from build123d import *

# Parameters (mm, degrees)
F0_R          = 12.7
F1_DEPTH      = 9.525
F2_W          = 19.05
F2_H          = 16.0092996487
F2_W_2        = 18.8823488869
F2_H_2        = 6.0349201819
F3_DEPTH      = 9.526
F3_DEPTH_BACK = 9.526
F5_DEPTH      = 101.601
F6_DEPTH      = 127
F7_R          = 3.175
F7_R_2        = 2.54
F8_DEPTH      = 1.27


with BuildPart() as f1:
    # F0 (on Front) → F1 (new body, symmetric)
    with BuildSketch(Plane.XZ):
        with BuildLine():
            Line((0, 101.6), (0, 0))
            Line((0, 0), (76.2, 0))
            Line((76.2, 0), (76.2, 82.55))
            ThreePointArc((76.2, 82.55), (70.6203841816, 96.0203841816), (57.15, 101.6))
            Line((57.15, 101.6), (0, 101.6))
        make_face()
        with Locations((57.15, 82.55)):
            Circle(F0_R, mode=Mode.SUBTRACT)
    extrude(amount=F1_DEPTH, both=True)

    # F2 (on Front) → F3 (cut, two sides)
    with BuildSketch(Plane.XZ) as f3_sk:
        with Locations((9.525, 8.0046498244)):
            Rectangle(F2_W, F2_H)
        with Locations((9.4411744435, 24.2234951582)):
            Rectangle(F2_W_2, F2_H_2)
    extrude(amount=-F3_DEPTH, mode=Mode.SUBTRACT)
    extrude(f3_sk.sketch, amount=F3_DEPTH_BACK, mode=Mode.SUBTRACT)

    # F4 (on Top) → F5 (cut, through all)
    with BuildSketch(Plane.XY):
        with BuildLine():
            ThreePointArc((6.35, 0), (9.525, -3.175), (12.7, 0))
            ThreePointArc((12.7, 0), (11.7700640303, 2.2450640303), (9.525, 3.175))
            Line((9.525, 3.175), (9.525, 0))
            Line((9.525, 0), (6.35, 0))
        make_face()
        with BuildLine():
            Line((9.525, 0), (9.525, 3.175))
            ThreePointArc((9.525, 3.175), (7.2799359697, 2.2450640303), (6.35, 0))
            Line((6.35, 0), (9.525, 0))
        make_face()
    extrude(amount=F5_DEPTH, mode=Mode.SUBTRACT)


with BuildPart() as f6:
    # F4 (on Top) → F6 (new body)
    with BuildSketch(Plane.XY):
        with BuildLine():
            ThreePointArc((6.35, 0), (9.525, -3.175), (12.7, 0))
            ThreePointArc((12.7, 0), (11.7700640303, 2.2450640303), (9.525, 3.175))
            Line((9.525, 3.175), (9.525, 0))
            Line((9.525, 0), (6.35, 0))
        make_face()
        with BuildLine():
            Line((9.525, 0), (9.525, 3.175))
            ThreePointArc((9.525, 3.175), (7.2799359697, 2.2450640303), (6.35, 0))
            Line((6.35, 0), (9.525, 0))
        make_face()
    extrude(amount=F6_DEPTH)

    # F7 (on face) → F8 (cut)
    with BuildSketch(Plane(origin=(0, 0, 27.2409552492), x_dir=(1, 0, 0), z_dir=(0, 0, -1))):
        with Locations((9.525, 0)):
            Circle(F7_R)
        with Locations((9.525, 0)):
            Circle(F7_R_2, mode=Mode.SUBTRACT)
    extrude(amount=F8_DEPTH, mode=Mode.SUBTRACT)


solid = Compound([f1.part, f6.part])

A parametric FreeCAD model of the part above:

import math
import FreeCAD as App
import Part
import Sketcher
from FreeCAD import Vector
Q = App.Units.Quantity


def add_polygon(sketch, points):
    """Adds a closed chain of lines whose ends are joined by coincident constraints."""
    first, n = sketch.GeometryCount, len(points)
    for a, b in zip(points, points[1:] + points[:1]):
        sketch.addGeometry(Part.LineSegment(App.Vector(*a, 0), App.Vector(*b, 0)), False)
    for i in range(n):
        sketch.addConstraint(Sketcher.Constraint("Coincident", first + i, 2, first + (i + 1) % n, 1))

doc = App.newDocument("Part")
body = doc.addObject("PartDesign::Body", "Body")

# Sketch on XZ plane
sketch1 = body.newObject("Sketcher::SketchObject", "Sketch")
sketch1.AttachmentSupport = (doc.getObject("XZ_Plane"), [""])
sketch1.MapMode = "FlatFace"
sketch1.addGeometry(Part.LineSegment(Vector(0, 101.6, 0), Vector(0, 0, 0)), False)
sketch1.addGeometry(Part.LineSegment(Vector(0, 0, 0), Vector(76.2, 0, 0)), False)
sketch1.addGeometry(Part.LineSegment(Vector(76.2, 0, 0), Vector(76.2, 82.55, 0)), False)
sketch1.addGeometry(Part.ArcOfCircle(Part.Circle(Vector(57.15, 82.55, 0), Vector(0, 0, 1), 19.05), math.radians(0), math.radians(90)), False)
sketch1.addGeometry(Part.LineSegment(Vector(57.15, 101.6, 0), Vector(0, 101.6, 0)), False)
sketch1.addGeometry(Part.Circle(Vector(57.15, 82.55, 0), Vector(0, 0, 1), 12.7), False)
sketch1.addConstraint(Sketcher.Constraint("Coincident", 0, 2, 1, 1))
sketch1.addConstraint(Sketcher.Constraint("Coincident", 1, 2, 2, 1))
sketch1.addConstraint(Sketcher.Constraint("Tangent", 2, 2, 3, 1))
sketch1.addConstraint(Sketcher.Constraint("Tangent", 3, 2, 4, 1))
sketch1.addConstraint(Sketcher.Constraint("Coincident", 4, 2, 0, 1))
sketch1.addConstraint(Sketcher.Constraint("Vertical", 0))
sketch1.addConstraint(Sketcher.Constraint("Horizontal", 1))
sketch1.addConstraint(Sketcher.Constraint("Vertical", 2))
sketch1.addConstraint(Sketcher.Constraint("Horizontal", 4))
sketch1.addConstraint(Sketcher.Constraint("Coincident", 0, 2, -1, 1))
sketch1.addConstraint(Sketcher.Constraint("Coincident", 5, 3, 3, 3))
sketch1.addConstraint(Sketcher.Constraint("Diameter", 5, Q("1 in")))
sketch1.addConstraint(Sketcher.Constraint("DistanceX", 1, 1, 1, 2, Q("3 in")))
sketch1.addConstraint(Sketcher.Constraint("DistanceY", 0, 2, 0, 1, Q("4 in")))
sketch1.addConstraint(Sketcher.Constraint("Radius", 3, Q("0.75 in")))
pad1 = body.newObject("PartDesign::Pad", "Pad")
pad1.Profile = sketch1
pad1.Length = Q("0.75 in")
pad1.Midplane = True

# Sketch on XZ plane
sketch2 = body.newObject("Sketcher::SketchObject", "Sketch001")
sketch2.AttachmentSupport = (doc.getObject("XZ_Plane"), [""])
sketch2.MapMode = "FlatFace"
add_polygon(sketch2, [(0, 16.0093), (0, 0), (19.05, 0), (19.05, 16.0093)])  # lines 0-3
add_polygon(sketch2, [(0, 27.240955), (0, 21.206035), (18.882349, 21.206035), (18.882349, 27.240955)])  # lines 4-7
sketch2.addConstraint(Sketcher.Constraint("Vertical", 0))
sketch2.addConstraint(Sketcher.Constraint("Horizontal", 1))
sketch2.addConstraint(Sketcher.Constraint("Vertical", 2))
sketch2.addConstraint(Sketcher.Constraint("Horizontal", 3))
sketch2.addConstraint(Sketcher.Constraint("Vertical", 4))
sketch2.addConstraint(Sketcher.Constraint("Horizontal", 5))
sketch2.addConstraint(Sketcher.Constraint("Vertical", 6))
sketch2.addConstraint(Sketcher.Constraint("Horizontal", 7))
sketch2.addConstraint(Sketcher.Constraint("Coincident", 0, 2, -1, 1))
sketch2.addConstraint(Sketcher.Constraint("PointOnObject", 4, 2, -2))
sketch2.addConstraint(Sketcher.Constraint("DistanceX", 1, 1, 1, 2, Q("0.75 in")))
sketch2.addConstraint(Sketcher.Constraint("DistanceY", 0, 2, 0, 1, 16.0093))
sketch2.addConstraint(Sketcher.Constraint("DistanceX", 5, 1, 5, 2, 18.882349))
sketch2.addConstraint(Sketcher.Constraint("DistanceY", 4, 2, 4, 1, 6.03492))
sketch2.addConstraint(Sketcher.Constraint("DistanceY", -1, 1, 4, 2, 21.206035))
pocket1 = body.newObject("PartDesign::Pocket", "Pocket")
pocket1.Profile = sketch2
pocket1.Type = "ThroughAll"
pocket1.Midplane = True

# Sketch on XY plane
sketch3 = body.newObject("Sketcher::SketchObject", "Sketch002")
sketch3.AttachmentSupport = (doc.getObject("XY_Plane"), [""])
sketch3.MapMode = "FlatFace"
sketch3.addGeometry(Part.ArcOfCircle(Part.Circle(Vector(9.525, 0, 0), Vector(0, 0, 1), 3.175), math.radians(180), math.radians(360)), False)
sketch3.addGeometry(Part.ArcOfCircle(Part.Circle(Vector(9.525, 0, 0), Vector(0, 0, 1), 3.175), math.radians(0), math.radians(90)), False)
sketch3.addGeometry(Part.ArcOfCircle(Part.Circle(Vector(9.525, 0, 0), Vector(0, 0, 1), 3.175), math.radians(90), math.radians(180)), False)
sketch3.addConstraint(Sketcher.Constraint("Tangent", 0, 2, 1, 1))
sketch3.addConstraint(Sketcher.Constraint("Tangent", 1, 2, 2, 1))
sketch3.addConstraint(Sketcher.Constraint("Tangent", 2, 2, 0, 1))
sketch3.addConstraint(Sketcher.Constraint("PointOnObject", 0, 3, -1))
sketch3.addConstraint(Sketcher.Constraint("PointOnObject", 0, 2, -1))
sketch3.addConstraint(Sketcher.Constraint("PointOnObject", 2, 2, -1))
sketch3.addConstraint(Sketcher.Constraint("Vertical", 2, 3, 1, 2))
sketch3.addConstraint(Sketcher.Constraint("Radius", 0, Q("0.125 in")))
sketch3.addConstraint(Sketcher.Constraint("DistanceX", -1, 1, 0, 2, Q("0.5 in")))
pocket2 = body.newObject("PartDesign::Pocket", "Pocket001")
pocket2.Profile = sketch3
pocket2.Type = "ThroughAll"
pocket2.Reversed = True
body2 = doc.addObject("PartDesign::Body", "Body001")

# Sketch on XY plane
sketch4 = body2.newObject("Sketcher::SketchObject", "Sketch003")
sketch4.AttachmentSupport = (doc.getObject("XY_Plane001"), [""])
sketch4.MapMode = "FlatFace"
sketch4.addGeometry(Part.ArcOfCircle(Part.Circle(Vector(9.525, 0, 0), Vector(0, 0, 1), 3.175), math.radians(180), math.radians(360)), False)
sketch4.addGeometry(Part.ArcOfCircle(Part.Circle(Vector(9.525, 0, 0), Vector(0, 0, 1), 3.175), math.radians(0), math.radians(90)), False)
sketch4.addGeometry(Part.ArcOfCircle(Part.Circle(Vector(9.525, 0, 0), Vector(0, 0, 1), 3.175), math.radians(90), math.radians(180)), False)
sketch4.addConstraint(Sketcher.Constraint("Tangent", 0, 2, 1, 1))
sketch4.addConstraint(Sketcher.Constraint("Tangent", 1, 2, 2, 1))
sketch4.addConstraint(Sketcher.Constraint("Tangent", 2, 2, 0, 1))
sketch4.addConstraint(Sketcher.Constraint("PointOnObject", 0, 3, -1))
sketch4.addConstraint(Sketcher.Constraint("PointOnObject", 0, 2, -1))
sketch4.addConstraint(Sketcher.Constraint("PointOnObject", 2, 2, -1))
sketch4.addConstraint(Sketcher.Constraint("Vertical", 2, 3, 1, 2))
sketch4.addConstraint(Sketcher.Constraint("Radius", 0, Q("0.125 in")))
sketch4.addConstraint(Sketcher.Constraint("DistanceX", -1, 1, 0, 2, Q("0.5 in")))
pad2 = body2.newObject("PartDesign::Pad", "Pad001")
pad2.Profile = sketch4
pad2.Length = Q("5 in")

# Sketch on XY plane
sketch5 = body2.newObject("Sketcher::SketchObject", "Sketch004")
sketch5.AttachmentSupport = (doc.getObject("XY_Plane001"), [""])
sketch5.MapMode = "FlatFace"
sketch5.AttachmentOffset = App.Placement(Vector(0, 0, 27.240955), App.Rotation())
sketch5.addGeometry(Part.Circle(Vector(9.525, 0, 0), Vector(0, 0, 1), 3.175), False)
sketch5.addGeometry(Part.Circle(Vector(9.525, 0, 0), Vector(0, 0, 1), 2.54), False)
sketch5.addConstraint(Sketcher.Constraint("Coincident", 1, 3, 0, 3))
sketch5.addConstraint(Sketcher.Constraint("PointOnObject", 0, 3, -1))
sketch5.addConstraint(Sketcher.Constraint("Diameter", 1, Q("0.2 in")))
sketch5.addConstraint(Sketcher.Constraint("Diameter", 0, Q("0.25 in")))
sketch5.addConstraint(Sketcher.Constraint("DistanceX", -1, 1, 0, 3, Q("0.375 in")))
pocket3 = body2.newObject("PartDesign::Pocket", "Pocket002")
pocket3.Profile = sketch5
pocket3.Length = Q("0.05 in")

doc.recompute()
